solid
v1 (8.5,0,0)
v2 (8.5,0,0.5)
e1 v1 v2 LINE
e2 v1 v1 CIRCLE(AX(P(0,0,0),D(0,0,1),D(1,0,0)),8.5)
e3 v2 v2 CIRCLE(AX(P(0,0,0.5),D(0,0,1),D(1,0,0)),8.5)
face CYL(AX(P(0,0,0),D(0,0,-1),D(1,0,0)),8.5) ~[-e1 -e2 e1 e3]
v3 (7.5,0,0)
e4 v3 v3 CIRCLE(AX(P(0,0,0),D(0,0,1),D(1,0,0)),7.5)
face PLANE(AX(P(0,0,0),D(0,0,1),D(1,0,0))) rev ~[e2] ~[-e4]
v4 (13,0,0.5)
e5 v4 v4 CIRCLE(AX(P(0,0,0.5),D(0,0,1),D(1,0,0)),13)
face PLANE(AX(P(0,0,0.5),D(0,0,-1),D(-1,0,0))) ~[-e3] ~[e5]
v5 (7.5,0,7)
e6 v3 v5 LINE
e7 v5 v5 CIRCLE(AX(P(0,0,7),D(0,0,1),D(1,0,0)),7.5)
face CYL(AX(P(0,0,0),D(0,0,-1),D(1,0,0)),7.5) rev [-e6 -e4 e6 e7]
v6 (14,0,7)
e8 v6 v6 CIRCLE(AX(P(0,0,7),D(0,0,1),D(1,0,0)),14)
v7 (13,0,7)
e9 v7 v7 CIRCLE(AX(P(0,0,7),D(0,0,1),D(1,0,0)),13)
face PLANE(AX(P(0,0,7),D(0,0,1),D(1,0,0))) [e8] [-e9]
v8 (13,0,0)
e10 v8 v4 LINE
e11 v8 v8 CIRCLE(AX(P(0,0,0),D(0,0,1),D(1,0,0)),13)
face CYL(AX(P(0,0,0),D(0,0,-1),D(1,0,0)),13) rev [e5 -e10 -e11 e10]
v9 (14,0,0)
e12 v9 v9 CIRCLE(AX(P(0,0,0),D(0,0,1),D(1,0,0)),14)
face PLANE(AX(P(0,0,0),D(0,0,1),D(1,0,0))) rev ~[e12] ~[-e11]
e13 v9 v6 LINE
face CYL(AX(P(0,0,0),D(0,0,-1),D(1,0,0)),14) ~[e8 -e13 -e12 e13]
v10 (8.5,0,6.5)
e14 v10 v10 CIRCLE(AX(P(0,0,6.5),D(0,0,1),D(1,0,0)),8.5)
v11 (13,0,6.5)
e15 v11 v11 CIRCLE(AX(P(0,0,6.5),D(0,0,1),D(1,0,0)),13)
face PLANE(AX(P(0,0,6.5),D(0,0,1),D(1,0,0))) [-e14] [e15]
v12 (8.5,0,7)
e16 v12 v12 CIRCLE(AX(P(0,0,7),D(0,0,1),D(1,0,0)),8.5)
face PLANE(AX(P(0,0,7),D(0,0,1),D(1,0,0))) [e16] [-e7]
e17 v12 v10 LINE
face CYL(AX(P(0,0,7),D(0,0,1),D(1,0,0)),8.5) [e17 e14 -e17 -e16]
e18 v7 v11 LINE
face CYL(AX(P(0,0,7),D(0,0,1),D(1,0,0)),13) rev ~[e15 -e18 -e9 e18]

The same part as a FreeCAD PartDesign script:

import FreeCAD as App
import Part
import Sketcher

V = App.Vector
Q = App.Units.Quantity

doc = App.newDocument("Part")
params = doc.addObject("Spreadsheet::Sheet", "Params")
for row, (alias, value) in enumerate([
    ("sketch1_diameter", "28 mm"),
    ("sketch1_diameter2", "15 mm"),
    ("pad1_length", "7 mm"),
    ("sketch2_diameter", "26 mm"),
    ("sketch2_diameter2", "17 mm"),
    ("pocket1_length", "0.5 mm"),
], start=1):
    params.set(f"A{row}", alias)
    params.set(f"B{row}", "=" + value)
    params.setAlias(f"B{row}", alias)

body = doc.addObject("PartDesign::Body", "Body")

# Sketch on XY plane
sketch1 = body.newObject("Sketcher::SketchObject", "Sketch")
sketch1.AttachmentSupport = (doc.getObject("XY_Plane"), [""])
sketch1.MapMode = "FlatFace"
sketch1.addGeometry([
    Part.Circle(V(0, 0, 0), V(0, 0, 1), 14),
    Part.Circle(V(0, 0, 0), V(0, 0, 1), 8),
], False)
sketch1.addConstraint([
    Sketcher.Constraint("Coincident", 0, 3, -1, 1),
    Sketcher.Constraint("Coincident", 1, 3, -1, 1),
    Sketcher.Constraint("Diameter", 0, Q("28 mm")),
    Sketcher.Constraint("Diameter", 1, Q("15 mm")),
])
sketch1.setExpression("Constraints[2]", "Params.sketch1_diameter")
sketch1.setExpression("Constraints[3]", "Params.sketch1_diameter2")
pad1 = body.newObject("PartDesign::Pad", "Pad")
pad1.Profile = sketch1
pad1.setExpression("Length", "Params.pad1_length")

# Sketch on XY plane
sketch2 = body.newObject("Sketcher::SketchObject", "Sketch001")
sketch2.AttachmentSupport = (doc.getObject("XY_Plane"), [""])
sketch2.MapMode = "FlatFace"
sketch2.AttachmentOffset = App.Placement(V(0, 0, 7), App.Rotation())
sketch2.addGeometry([
    Part.Circle(V(0, 0, 0), V(0, 0, 1), 13),
    Part.Circle(V(0, 0, 0), V(0, 0, 1), 8),
], False)
sketch2.addConstraint([
    Sketcher.Constraint("Coincident", 0, 3, -1, 1),
    Sketcher.Constraint("Coincident", 1, 3, -1, 1),
    Sketcher.Constraint("Diameter", 0, Q("26 mm")),
    Sketcher.Constraint("Diameter", 1, Q("17 mm")),
])
sketch2.setExpression("Constraints[2]", "Params.sketch2_diameter")
sketch2.setExpression("Constraints[3]", "Params.sketch2_diameter2")
pocket1 = body.newObject("PartDesign::Pocket", "Pocket")
pocket1.Profile = sketch2
pocket1.setExpression("Length", "Params.pocket1_length")
doc.recompute()

datumplane = body.newObject("PartDesign::Plane", "DatumPlane")
datumplane.AttachmentSupport = (doc.getObject("XY_Plane"), [""])
datumplane.MapMode = "FlatFace"
datumplane.AttachmentOffset = App.Placement(V(0, 0, 3.5), App.Rotation())
mirrored = body.newObject("PartDesign::Mirrored", "Mirrored")
mirrored.Originals = [pocket1]
mirrored.MirrorPlane = (datumplane, [""])
body.Tip = mirrored

doc.recompute()
